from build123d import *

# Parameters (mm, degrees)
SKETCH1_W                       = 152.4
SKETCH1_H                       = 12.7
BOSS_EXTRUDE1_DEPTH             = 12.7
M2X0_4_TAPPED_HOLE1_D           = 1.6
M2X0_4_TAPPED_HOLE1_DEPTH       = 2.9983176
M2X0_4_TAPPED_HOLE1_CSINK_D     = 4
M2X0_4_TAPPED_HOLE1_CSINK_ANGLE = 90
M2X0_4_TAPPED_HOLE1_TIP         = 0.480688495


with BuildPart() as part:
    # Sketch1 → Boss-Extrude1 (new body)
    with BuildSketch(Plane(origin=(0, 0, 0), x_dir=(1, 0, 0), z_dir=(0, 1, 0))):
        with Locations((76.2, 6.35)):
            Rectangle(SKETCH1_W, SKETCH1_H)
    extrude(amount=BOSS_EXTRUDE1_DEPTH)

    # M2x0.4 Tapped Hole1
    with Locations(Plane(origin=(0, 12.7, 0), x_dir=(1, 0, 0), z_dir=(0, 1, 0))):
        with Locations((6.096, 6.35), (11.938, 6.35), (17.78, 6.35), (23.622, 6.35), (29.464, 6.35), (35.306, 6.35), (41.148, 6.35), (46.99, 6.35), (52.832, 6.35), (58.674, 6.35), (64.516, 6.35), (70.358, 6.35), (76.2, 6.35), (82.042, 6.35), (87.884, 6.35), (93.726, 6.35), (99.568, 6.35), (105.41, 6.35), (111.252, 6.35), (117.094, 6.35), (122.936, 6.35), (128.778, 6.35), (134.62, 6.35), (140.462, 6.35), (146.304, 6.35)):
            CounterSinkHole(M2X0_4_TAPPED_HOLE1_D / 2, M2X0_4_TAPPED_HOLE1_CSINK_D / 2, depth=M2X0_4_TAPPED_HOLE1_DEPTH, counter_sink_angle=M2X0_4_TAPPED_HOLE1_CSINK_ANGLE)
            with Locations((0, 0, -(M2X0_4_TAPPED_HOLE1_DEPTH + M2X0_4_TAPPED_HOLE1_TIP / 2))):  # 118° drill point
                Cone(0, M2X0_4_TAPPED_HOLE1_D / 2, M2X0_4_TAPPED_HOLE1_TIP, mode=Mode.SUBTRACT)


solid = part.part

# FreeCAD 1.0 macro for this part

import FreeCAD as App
import Part
import Sketcher
from FreeCAD import Vector
Q = App.Units.Quantity


def add_polygon(sketch, points):
    """Adds a closed chain of lines whose ends are joined by coincident constraints."""
    first, n = sketch.GeometryCount, len(points)
    for a, b in zip(points, points[1:] + points[:1]):
        sketch.addGeometry(Part.LineSegment(App.Vector(*a, 0), App.Vector(*b, 0)), False)
    for i in range(n):
        sketch.addConstraint(Sketcher.Constraint("Coincident", first + i, 2, first + (i + 1) % n, 1))

doc = App.newDocument("Part")
body = doc.addObject("PartDesign::Body", "Body")

sketch1 = body.newObject("Sketcher::SketchObject", "Sketch")
sketch1.AttachmentSupport = (doc.getObject("XZ_Plane"), [""])
sketch1.MapMode = "FlatFace"
add_polygon(sketch1, [(0, -12.7), (0, 0), (152.4, 0), (152.4, -12.7)])
sketch1.addConstraint([
    Sketcher.Constraint("Vertical", 0),
    Sketcher.Constraint("Horizontal", 1),
    Sketcher.Constraint("Vertical", 2),
    Sketcher.Constraint("Horizontal", 3),
    Sketcher.Constraint("Coincident", 0, 2, -1, 1),
    Sketcher.Constraint("DistanceX", 1, 1, 1, 2, Q("6 in")),
    Sketcher.Constraint("DistanceY", 0, 1, 0, 2, Q("0.5 in")),
])
pad1 = body.newObject("PartDesign::Pad", "Pad")
pad1.Profile = sketch1
pad1.Length = Q("0.5 in")
pad1.Reversed = True

sketch2 = body.newObject("Sketcher::SketchObject", "Sketch001")
sketch2.AttachmentSupport = (doc.getObject("XZ_Plane"), [""])
sketch2.MapMode = "FlatFace"
sketch2.AttachmentOffset = App.Placement(Vector(0, 0, -0.5 * 25.4), App.Rotation())
sketch2.addGeometry([
    Part.Circle(Vector(6.096, -6.35, 0), Vector(0, 0, 1), 0.8),
    Part.Circle(Vector(11.938, -6.35, 0), Vector(0, 0, 1), 0.8),
    Part.Circle(Vector(17.78, -6.35, 0), Vector(0, 0, 1), 0.8),
    Part.Circle(Vector(23.622, -6.35, 0), Vector(0, 0, 1), 0.8),
    Part.Circle(Vector(29.464, -6.35, 0), Vector(0, 0, 1), 0.8),
    Part.Circle(Vector(35.306, -6.35, 0), Vector(0, 0, 1), 0.8),
    Part.Circle(Vector(41.148, -6.35, 0), Vector(0, 0, 1), 0.8),
    Part.Circle(Vector(46.99, -6.35, 0), Vector(0, 0, 1), 0.8),
    Part.Circle(Vector(52.832, -6.35, 0), Vector(0, 0, 1), 0.8),
    Part.Circle(Vector(58.674, -6.35, 0), Vector(0, 0, 1), 0.8),
    Part.Circle(Vector(64.516, -6.35, 0), Vector(0, 0, 1), 0.8),
    Part.Circle(Vector(70.358, -6.35, 0), Vector(0, 0, 1), 0.8),
    Part.Circle(Vector(76.2, -6.35, 0), Vector(0, 0, 1), 0.8),
    Part.Circle(Vector(82.042, -6.35, 0), Vector(0, 0, 1), 0.8),
    Part.Circle(Vector(87.884, -6.35, 0), Vector(0, 0, 1), 0.8),
    Part.Circle(Vector(93.726, -6.35, 0), Vector(0, 0, 1), 0.8),
    Part.Circle(Vector(99.568, -6.35, 0), Vector(0, 0, 1), 0.8),
    Part.Circle(Vector(105.41, -6.35, 0), Vector(0, 0, 1), 0.8),
    Part.Circle(Vector(111.252, -6.35, 0), Vector(0, 0, 1), 0.8),
    Part.Circle(Vector(117.094, -6.35, 0), Vector(0, 0, 1), 0.8),
    Part.Circle(Vector(122.936, -6.35, 0), Vector(0, 0, 1), 0.8),
    Part.Circle(Vector(128.778, -6.35, 0), Vector(0, 0, 1), 0.8),
    Part.Circle(Vector(134.62, -6.35, 0), Vector(0, 0, 1), 0.8),
    Part.Circle(Vector(140.462, -6.35, 0), Vector(0, 0, 1), 0.8),
    Part.Circle(Vector(146.304, -6.35, 0), Vector(0, 0, 1), 0.8),
], False)
sketch2.addConstraint([
    Sketcher.Constraint("Equal", 0, 1),
    Sketcher.Constraint("Equal", 1, 2),
    Sketcher.Constraint("Equal", 2, 3),
    Sketcher.Constraint("Equal", 3, 4),
    Sketcher.Constraint("Equal", 4, 5),
    Sketcher.Constraint("Equal", 5, 6),
    Sketcher.Constraint("Equal", 6, 7),
    Sketcher.Constraint("Equal", 7, 8),
    Sketcher.Constraint("Equal", 8, 9),
    Sketcher.Constraint("Equal", 9, 10),
    Sketcher.Constraint("Equal", 10, 11),
    Sketcher.Constraint("Equal", 11, 12),
    Sketcher.Constraint("Equal", 12, 13),
    Sketcher.Constraint("Equal", 13, 14),
    Sketcher.Constraint("Equal", 14, 15),
    Sketcher.Constraint("Equal", 15, 16),
    Sketcher.Constraint("Equal", 16, 17),
    Sketcher.Constraint("Equal", 17, 18),
    Sketcher.Constraint("Equal", 18, 19),
    Sketcher.Constraint("Equal", 19, 20),
    Sketcher.Constraint("Equal", 20, 21),
    Sketcher.Constraint("Equal", 21, 22),
    Sketcher.Constraint("Equal", 22, 23),
    Sketcher.Constraint("Equal", 23, 24),
    Sketcher.Constraint("Horizontal", 0, 3, 1, 3),
    Sketcher.Constraint("Horizontal", 1, 3, 2, 3),
    Sketcher.Constraint("Horizontal", 2, 3, 3, 3),
    Sketcher.Constraint("Horizontal", 3, 3, 4, 3),
    Sketcher.Constraint("Horizontal", 4, 3, 5, 3),
    Sketcher.Constraint("Horizontal", 5, 3, 6, 3),
    Sketcher.Constraint("Horizontal", 6, 3, 7, 3),
    Sketcher.Constraint("Horizontal", 7, 3, 8, 3),
    Sketcher.Constraint("Horizontal", 8, 3, 9, 3),
    Sketcher.Constraint("Horizontal", 9, 3, 10, 3),
    Sketcher.Constraint("Horizontal", 10, 3, 11, 3),
    Sketcher.Constraint("Horizontal", 11, 3, 12, 3),
    Sketcher.Constraint("Horizontal", 12, 3, 13, 3),
    Sketcher.Constraint("Horizontal", 13, 3, 14, 3),
    Sketcher.Constraint("Horizontal", 14, 3, 15, 3),
    Sketcher.Constraint("Horizontal", 15, 3, 16, 3),
    Sketcher.Constraint("Horizontal", 16, 3, 17, 3),
    Sketcher.Constraint("Horizontal", 17, 3, 18, 3),
    Sketcher.Constraint("Horizontal", 18, 3, 19, 3),
    Sketcher.Constraint("Horizontal", 19, 3, 20, 3),
    Sketcher.Constraint("Horizontal", 20, 3, 21, 3),
    Sketcher.Constraint("Horizontal", 21, 3, 22, 3),
    Sketcher.Constraint("Horizontal", 22, 3, 23, 3),
    Sketcher.Constraint("Horizontal", 23, 3, 24, 3),
    Sketcher.Constraint("DistanceX", -1, 1, 12, 3, Q("3 in")),
    Sketcher.Constraint("DistanceX", -1, 1, 2, 3, Q("0.7 in")),
    Sketcher.Constraint("DistanceX", -1, 1, 22, 3, Q("5.3 in")),
    Sketcher.Constraint("Diameter", 0, 1.6),
    Sketcher.Constraint("DistanceX", -1, 1, 0, 3, Q("0.24 in")),
    Sketcher.Constraint("DistanceY", 0, 3, -1, 1, Q("0.25 in")),
    Sketcher.Constraint("DistanceX", -1, 1, 1, 3, Q("0.47 in")),
    Sketcher.Constraint("DistanceX", -1, 1, 3, 3, Q("0.93 in")),
    Sketcher.Constraint("DistanceX", -1, 1, 4, 3, Q("1.16 in")),
    Sketcher.Constraint("DistanceX", -1, 1, 5, 3, Q("1.39 in")),
    Sketcher.Constraint("DistanceX", -1, 1, 6, 3, Q("1.62 in")),
    Sketcher.Constraint("DistanceX", -1, 1, 7, 3, Q("1.85 in")),
    Sketcher.Constraint("DistanceX", -1, 1, 8, 3, Q("2.08 in")),
    Sketcher.Constraint("DistanceX", -1, 1, 9, 3, Q("2.31 in")),
    Sketcher.Constraint("DistanceX", -1, 1, 10, 3, Q("2.54 in")),
    Sketcher.Constraint("DistanceX", -1, 1, 11, 3, Q("2.77 in")),
    Sketcher.Constraint("DistanceX", -1, 1, 13, 3, Q("3.23 in")),
    Sketcher.Constraint("DistanceX", -1, 1, 14, 3, Q("3.46 in")),
    Sketcher.Constraint("DistanceX", -1, 1, 15, 3, Q("3.69 in")),
    Sketcher.Constraint("DistanceX", -1, 1, 16, 3, Q("3.92 in")),
    Sketcher.Constraint("DistanceX", -1, 1, 17, 3, Q("4.15 in")),
    Sketcher.Constraint("DistanceX", -1, 1, 18, 3, Q("4.38 in")),
    Sketcher.Constraint("DistanceX", -1, 1, 19, 3, Q("4.61 in")),
    Sketcher.Constraint("DistanceX", -1, 1, 20, 3, Q("4.84 in")),
    Sketcher.Constraint("DistanceX", -1, 1, 21, 3, Q("5.07 in")),
    Sketcher.Constraint("DistanceX", -1, 1, 23, 3, Q("5.53 in")),
    Sketcher.Constraint("DistanceX", -1, 1, 24, 3, Q("5.76 in")),
])
doc.recompute()
hole = body.newObject("PartDesign::Hole", "Hole")
hole.Profile = sketch2
hole.ThreadType = "None"
hole.Diameter = 1.6
hole.DepthType = "Dimension"
hole.Depth = 2.998318
hole.DrillPoint = "Angled"
hole.DrillPointAngle = 118
hole.HoleCutType = "Countersink"
hole.HoleCutDiameter = 4
hole.HoleCutCountersinkAngle = 90
hole.Reversed = True

doc.recompute()
